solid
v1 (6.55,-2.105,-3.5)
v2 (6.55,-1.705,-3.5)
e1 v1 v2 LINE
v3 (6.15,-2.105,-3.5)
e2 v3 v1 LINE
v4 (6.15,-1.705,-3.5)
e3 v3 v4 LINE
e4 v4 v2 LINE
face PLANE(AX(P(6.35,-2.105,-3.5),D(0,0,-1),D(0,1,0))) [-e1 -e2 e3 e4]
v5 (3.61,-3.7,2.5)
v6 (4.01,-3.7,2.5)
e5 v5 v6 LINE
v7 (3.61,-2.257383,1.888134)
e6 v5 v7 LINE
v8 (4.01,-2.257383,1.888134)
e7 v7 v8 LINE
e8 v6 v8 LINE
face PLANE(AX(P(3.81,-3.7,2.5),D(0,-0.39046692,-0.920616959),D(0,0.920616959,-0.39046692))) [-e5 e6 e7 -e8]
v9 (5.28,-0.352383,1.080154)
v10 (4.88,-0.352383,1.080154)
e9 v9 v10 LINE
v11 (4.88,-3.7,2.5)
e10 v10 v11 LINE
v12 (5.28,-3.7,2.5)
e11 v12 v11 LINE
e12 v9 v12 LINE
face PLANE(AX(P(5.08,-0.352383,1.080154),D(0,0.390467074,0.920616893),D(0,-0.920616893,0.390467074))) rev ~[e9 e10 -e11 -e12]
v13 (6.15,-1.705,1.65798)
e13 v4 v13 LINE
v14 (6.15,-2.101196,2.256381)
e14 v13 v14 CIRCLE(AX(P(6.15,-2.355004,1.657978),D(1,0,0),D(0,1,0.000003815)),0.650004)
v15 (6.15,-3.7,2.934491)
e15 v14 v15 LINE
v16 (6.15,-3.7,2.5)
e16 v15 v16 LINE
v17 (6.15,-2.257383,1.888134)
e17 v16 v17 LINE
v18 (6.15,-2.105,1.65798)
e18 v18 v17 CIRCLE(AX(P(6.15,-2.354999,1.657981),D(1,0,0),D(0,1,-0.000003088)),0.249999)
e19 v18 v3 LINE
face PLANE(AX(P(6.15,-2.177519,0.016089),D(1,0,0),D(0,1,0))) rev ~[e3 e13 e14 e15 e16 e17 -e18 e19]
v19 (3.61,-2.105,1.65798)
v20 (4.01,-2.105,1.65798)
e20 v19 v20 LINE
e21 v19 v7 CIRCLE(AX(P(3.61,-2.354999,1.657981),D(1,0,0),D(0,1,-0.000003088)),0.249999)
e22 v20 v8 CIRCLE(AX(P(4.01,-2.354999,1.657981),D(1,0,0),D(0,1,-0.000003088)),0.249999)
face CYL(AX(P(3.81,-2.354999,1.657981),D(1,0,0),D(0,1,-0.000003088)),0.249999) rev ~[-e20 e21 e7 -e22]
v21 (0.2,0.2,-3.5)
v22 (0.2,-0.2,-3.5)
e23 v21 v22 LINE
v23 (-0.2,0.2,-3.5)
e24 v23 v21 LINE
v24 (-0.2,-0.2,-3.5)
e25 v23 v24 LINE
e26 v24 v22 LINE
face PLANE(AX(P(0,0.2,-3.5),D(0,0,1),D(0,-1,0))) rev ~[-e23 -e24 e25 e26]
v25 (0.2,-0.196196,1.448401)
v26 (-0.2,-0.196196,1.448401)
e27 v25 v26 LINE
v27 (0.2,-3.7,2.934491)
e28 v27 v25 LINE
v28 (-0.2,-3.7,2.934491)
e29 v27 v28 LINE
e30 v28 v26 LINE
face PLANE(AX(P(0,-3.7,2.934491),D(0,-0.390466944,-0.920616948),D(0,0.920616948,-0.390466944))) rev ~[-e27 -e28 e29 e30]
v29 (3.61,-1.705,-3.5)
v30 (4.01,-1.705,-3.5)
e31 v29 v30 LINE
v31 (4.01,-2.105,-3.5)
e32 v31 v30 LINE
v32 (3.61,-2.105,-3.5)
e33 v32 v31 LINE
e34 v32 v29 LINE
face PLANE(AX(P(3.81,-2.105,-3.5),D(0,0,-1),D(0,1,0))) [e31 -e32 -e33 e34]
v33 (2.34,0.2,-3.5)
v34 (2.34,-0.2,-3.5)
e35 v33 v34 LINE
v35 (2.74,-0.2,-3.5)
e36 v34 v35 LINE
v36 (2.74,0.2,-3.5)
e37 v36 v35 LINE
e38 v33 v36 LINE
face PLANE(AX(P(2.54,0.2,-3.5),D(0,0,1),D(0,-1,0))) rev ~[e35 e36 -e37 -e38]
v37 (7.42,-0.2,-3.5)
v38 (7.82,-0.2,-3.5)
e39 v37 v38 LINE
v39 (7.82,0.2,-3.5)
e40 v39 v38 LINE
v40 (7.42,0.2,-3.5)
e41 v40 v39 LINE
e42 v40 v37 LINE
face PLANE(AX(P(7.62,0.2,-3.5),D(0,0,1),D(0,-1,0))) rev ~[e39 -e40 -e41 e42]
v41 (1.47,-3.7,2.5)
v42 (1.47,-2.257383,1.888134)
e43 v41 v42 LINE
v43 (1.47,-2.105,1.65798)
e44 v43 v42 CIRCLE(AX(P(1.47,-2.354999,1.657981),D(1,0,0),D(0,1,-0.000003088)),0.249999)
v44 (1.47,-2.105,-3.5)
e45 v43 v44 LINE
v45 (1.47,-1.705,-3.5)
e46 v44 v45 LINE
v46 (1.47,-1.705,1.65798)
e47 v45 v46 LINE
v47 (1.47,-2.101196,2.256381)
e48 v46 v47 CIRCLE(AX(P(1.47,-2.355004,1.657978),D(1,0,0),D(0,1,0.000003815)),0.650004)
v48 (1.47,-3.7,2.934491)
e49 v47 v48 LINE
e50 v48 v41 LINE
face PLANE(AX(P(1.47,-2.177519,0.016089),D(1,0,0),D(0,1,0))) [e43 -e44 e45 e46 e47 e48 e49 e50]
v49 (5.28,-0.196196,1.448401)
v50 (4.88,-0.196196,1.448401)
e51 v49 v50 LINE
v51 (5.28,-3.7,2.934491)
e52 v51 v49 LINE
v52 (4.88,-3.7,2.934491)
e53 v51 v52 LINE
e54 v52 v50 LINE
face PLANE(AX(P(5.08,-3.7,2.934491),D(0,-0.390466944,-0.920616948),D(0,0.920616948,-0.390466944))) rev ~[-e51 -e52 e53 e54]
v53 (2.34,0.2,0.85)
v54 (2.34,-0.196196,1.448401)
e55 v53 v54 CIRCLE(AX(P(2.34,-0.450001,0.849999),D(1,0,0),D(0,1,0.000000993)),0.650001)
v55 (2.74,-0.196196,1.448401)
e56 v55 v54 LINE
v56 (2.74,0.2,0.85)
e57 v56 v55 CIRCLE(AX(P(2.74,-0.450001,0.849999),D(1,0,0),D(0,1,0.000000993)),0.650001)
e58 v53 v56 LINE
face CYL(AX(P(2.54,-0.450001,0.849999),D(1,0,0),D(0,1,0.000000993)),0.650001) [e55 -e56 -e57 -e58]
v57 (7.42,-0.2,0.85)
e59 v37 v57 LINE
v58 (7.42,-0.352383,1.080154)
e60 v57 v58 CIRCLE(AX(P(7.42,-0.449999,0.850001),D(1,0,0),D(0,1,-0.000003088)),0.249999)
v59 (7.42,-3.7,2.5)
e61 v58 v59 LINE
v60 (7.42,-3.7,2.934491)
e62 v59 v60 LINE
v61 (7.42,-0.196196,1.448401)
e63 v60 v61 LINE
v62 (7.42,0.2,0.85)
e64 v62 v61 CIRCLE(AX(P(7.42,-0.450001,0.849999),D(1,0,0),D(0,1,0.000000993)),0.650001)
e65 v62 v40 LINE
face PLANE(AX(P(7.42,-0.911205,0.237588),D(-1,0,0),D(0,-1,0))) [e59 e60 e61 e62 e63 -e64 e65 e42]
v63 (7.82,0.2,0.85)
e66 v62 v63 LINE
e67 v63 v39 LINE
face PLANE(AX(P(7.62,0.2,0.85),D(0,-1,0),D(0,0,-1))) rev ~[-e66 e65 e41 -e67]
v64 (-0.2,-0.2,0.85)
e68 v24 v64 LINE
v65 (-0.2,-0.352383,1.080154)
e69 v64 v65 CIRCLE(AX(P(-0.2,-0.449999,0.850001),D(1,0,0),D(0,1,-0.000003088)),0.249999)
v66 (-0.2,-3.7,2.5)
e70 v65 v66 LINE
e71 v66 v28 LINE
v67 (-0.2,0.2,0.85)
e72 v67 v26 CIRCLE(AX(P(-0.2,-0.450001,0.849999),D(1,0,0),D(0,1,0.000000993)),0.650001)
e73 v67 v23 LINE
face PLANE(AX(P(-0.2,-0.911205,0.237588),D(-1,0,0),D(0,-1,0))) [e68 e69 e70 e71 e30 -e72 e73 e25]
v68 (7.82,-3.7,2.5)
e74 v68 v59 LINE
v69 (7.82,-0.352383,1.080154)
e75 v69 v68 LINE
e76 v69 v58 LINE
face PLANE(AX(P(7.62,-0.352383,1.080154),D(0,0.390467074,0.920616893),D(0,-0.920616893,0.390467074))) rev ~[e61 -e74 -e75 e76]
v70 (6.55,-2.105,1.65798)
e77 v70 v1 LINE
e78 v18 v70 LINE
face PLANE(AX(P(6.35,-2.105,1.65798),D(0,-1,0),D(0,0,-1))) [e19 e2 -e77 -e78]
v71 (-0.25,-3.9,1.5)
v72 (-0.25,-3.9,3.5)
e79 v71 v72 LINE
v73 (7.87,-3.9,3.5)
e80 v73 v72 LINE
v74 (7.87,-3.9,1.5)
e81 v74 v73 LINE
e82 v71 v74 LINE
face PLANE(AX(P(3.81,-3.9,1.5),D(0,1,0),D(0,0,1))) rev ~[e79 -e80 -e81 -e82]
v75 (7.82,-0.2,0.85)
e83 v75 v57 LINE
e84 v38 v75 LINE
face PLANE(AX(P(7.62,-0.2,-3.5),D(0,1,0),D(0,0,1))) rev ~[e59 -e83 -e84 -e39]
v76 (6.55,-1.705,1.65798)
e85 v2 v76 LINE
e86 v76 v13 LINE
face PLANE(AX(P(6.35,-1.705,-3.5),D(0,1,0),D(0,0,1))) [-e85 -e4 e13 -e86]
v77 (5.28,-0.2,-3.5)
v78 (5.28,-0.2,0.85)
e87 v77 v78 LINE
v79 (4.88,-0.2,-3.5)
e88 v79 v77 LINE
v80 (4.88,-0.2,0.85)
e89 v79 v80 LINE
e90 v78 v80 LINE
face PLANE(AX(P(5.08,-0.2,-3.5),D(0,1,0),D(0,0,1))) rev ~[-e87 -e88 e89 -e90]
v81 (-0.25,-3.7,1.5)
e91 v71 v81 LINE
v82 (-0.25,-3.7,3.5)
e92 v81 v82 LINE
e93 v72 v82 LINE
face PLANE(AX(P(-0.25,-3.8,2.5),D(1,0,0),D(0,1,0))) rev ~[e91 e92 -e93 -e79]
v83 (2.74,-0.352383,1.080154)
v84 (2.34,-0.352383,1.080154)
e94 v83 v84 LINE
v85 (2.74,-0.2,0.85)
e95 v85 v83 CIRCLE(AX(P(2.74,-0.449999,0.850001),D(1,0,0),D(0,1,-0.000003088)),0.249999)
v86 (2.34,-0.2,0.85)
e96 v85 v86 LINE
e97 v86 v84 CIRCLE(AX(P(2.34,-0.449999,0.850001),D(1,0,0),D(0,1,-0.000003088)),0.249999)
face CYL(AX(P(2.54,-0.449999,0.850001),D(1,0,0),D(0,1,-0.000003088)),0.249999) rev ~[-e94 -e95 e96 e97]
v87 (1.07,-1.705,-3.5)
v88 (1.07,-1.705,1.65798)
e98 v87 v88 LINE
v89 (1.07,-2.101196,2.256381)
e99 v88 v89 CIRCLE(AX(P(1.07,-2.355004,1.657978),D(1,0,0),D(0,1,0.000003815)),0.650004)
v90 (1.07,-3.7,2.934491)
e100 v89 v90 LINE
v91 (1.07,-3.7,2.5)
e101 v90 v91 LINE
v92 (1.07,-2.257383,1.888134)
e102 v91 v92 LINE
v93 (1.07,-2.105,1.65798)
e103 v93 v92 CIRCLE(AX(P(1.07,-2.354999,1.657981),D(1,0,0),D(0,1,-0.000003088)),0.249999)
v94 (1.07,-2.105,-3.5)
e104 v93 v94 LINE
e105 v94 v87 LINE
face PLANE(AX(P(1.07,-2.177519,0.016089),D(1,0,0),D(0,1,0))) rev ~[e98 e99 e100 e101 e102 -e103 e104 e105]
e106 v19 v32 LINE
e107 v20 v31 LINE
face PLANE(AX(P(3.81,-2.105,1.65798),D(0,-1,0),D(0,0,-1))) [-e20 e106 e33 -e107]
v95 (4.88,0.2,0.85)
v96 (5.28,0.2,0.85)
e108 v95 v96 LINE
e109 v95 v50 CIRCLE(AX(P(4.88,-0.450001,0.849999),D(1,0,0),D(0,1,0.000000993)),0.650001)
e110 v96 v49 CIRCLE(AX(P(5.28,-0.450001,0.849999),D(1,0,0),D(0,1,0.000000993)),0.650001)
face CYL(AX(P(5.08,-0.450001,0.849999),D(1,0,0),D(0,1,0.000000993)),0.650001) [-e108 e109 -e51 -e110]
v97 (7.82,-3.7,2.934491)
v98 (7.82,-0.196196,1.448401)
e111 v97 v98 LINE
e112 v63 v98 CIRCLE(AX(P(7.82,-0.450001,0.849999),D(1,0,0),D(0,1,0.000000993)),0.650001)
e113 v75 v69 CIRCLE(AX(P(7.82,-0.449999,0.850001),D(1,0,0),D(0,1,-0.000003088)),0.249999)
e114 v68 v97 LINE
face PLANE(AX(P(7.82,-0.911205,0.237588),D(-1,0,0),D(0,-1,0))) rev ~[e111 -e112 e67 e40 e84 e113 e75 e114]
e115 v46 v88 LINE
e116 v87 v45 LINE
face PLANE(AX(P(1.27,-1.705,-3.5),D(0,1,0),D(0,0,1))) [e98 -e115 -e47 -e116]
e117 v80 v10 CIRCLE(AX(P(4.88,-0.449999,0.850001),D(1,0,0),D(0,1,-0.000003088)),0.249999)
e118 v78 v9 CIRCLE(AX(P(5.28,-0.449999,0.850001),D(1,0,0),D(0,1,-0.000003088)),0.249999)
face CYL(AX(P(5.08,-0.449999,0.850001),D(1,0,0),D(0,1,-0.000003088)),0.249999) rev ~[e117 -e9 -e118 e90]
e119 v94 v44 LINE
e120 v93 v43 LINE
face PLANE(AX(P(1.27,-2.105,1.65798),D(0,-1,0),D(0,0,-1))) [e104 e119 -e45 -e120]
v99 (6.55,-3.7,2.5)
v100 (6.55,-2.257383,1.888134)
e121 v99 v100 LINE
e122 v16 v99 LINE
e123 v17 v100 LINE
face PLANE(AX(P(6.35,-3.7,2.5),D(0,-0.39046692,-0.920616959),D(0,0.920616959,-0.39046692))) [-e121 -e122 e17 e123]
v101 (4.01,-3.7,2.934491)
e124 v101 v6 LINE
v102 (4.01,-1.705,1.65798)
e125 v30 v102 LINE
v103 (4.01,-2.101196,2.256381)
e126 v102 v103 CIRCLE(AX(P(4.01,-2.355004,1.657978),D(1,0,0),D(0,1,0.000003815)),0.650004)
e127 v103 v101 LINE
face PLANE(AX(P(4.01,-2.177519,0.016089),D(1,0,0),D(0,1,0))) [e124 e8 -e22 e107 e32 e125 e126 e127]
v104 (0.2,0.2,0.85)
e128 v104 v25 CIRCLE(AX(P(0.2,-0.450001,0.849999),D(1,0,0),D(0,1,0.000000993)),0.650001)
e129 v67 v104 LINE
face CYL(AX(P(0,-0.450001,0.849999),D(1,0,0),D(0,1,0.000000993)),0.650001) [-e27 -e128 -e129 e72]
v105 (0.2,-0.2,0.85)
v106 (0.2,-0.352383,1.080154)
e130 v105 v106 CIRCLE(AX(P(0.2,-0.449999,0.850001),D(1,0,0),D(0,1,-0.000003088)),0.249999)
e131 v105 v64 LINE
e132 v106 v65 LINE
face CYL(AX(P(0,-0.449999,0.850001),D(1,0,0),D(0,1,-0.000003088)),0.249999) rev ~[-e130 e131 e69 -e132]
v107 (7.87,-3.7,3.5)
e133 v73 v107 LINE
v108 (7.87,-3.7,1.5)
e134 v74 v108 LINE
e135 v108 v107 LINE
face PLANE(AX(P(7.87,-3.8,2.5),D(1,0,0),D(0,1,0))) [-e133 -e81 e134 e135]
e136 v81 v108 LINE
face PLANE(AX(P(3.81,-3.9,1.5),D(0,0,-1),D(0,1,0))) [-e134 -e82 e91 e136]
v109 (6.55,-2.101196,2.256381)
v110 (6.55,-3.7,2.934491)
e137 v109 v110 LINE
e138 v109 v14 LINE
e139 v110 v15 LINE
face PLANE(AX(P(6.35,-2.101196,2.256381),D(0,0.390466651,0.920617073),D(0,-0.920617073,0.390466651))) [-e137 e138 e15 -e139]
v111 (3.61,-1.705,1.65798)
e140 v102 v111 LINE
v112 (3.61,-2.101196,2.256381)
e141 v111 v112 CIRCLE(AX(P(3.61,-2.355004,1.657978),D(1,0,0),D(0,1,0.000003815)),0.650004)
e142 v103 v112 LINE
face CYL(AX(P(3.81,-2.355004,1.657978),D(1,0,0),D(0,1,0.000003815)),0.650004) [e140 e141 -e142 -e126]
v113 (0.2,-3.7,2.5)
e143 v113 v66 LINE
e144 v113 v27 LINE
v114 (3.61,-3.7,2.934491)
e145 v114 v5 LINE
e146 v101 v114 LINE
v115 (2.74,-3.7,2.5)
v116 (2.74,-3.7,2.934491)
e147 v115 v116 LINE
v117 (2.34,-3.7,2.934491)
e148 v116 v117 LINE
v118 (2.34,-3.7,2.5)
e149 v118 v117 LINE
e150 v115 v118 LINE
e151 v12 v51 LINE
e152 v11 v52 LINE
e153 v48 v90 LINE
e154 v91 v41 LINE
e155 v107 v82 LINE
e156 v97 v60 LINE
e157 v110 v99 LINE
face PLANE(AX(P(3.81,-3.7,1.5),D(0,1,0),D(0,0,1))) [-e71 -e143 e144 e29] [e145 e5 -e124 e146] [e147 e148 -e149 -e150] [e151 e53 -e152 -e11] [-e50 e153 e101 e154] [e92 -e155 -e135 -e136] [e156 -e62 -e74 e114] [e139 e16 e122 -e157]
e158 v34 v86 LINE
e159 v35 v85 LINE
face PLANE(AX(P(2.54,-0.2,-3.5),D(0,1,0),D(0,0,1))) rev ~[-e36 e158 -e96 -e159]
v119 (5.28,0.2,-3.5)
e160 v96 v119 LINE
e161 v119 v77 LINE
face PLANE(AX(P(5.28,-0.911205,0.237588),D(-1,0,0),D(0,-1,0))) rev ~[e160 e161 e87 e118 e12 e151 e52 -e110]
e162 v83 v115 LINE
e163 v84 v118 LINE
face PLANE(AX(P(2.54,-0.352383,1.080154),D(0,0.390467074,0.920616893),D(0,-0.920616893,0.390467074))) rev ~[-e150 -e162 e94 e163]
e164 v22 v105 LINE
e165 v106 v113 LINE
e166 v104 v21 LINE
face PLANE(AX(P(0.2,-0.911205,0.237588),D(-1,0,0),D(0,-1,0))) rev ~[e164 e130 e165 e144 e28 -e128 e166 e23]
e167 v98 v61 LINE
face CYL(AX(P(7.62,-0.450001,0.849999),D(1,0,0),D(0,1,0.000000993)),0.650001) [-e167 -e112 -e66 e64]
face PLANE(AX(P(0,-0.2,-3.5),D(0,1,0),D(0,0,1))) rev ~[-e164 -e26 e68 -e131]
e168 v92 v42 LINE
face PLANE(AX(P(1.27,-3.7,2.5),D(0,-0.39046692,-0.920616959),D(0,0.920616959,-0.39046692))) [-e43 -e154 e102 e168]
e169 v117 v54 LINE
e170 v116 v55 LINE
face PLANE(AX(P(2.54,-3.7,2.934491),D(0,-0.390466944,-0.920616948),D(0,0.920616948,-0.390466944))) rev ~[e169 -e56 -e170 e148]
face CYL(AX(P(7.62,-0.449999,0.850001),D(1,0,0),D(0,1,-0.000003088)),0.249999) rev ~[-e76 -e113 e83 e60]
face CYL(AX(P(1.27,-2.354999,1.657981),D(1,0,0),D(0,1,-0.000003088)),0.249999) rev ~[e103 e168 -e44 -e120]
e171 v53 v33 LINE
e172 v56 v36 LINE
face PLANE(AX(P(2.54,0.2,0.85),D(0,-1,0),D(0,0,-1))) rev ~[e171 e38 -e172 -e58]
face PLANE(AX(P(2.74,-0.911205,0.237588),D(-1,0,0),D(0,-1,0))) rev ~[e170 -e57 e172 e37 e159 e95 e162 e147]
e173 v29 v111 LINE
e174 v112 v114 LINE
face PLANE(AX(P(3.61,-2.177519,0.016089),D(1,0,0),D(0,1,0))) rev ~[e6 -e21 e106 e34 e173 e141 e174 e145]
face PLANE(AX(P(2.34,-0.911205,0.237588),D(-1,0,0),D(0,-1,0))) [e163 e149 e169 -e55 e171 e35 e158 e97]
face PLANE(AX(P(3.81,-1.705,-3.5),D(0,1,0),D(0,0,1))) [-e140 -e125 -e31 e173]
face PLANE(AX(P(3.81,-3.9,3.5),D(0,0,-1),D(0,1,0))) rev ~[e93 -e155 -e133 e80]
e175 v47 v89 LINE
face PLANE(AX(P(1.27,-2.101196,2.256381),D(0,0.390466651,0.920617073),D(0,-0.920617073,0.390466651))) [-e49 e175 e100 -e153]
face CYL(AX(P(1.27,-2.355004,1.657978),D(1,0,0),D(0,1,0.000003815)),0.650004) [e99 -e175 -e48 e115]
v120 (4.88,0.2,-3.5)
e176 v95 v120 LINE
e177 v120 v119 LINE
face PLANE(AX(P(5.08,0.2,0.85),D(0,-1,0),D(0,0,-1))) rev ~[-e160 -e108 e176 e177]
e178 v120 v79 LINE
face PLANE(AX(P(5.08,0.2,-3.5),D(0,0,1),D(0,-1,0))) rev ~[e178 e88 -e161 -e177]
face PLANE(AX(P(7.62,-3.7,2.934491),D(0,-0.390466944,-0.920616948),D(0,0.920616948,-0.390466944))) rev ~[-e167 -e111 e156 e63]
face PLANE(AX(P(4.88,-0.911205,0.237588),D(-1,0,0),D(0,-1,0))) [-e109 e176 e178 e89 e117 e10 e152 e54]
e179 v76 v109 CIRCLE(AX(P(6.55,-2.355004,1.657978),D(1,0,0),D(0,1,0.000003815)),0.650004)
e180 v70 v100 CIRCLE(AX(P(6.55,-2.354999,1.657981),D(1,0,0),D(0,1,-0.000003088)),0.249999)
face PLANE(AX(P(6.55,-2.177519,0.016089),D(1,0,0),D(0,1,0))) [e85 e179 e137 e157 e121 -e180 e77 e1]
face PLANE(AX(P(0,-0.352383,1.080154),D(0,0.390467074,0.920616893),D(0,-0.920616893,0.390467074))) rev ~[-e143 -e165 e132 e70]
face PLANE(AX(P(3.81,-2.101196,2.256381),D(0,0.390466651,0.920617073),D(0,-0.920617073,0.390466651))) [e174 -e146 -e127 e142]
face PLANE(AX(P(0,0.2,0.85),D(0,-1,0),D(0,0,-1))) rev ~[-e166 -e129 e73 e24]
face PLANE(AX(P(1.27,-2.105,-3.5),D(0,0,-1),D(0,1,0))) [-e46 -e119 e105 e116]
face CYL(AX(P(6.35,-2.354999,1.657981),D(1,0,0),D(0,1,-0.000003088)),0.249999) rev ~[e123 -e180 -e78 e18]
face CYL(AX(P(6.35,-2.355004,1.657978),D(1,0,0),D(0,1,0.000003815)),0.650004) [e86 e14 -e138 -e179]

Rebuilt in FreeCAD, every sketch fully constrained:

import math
import FreeCAD as App
import Part
import Sketcher

V = App.Vector

doc = App.newDocument("Part")
body = doc.addObject("PartDesign::Body", "Body")

sketch1 = body.newObject("Sketcher::SketchObject", "Sketch")
sketch1.AttachmentSupport = (doc.getObject("YZ_Plane"), [""])
sketch1.MapMode = "FlatFace"
sketch1.AttachmentOffset = App.Placement(V(0, 0, 3.81), App.Rotation())
sketch1.addGeometry([
    Part.LineSegment(V(-3.9, 3.5, 0), V(-3.9, 1.5, 0)),
    Part.LineSegment(V(-3.9, 1.5, 0), V(-3.7, 1.5, 0)),
    Part.LineSegment(V(-3.7, 1.5, 0), V(-3.7, 3.5, 0)),
    Part.LineSegment(V(-3.7, 3.5, 0), V(-3.9, 3.5, 0)),
], False)
sketch1.addConstraint([
    Sketcher.Constraint("Coincident", 0, 2, 1, 1),
    Sketcher.Constraint("Coincident", 1, 2, 2, 1),
    Sketcher.Constraint("Coincident", 2, 2, 3, 1),
    Sketcher.Constraint("Coincident", 3, 2, 0, 1),
    Sketcher.Constraint("Vertical", 0),
    Sketcher.Constraint("Horizontal", 1),
    Sketcher.Constraint("Vertical", 2),
    Sketcher.Constraint("Horizontal", 3),
    Sketcher.Constraint("DistanceY", 0, 2, 0, 1, 2.0),
    Sketcher.Constraint("DistanceX", 1, 1, 1, 2, 0.2),
    Sketcher.Constraint("DistanceX", 0, 2, -1, 1, 3.9),
    Sketcher.Constraint("DistanceY", -1, 1, 0, 2, 1.5),
])
pad1 = body.newObject("PartDesign::Pad", "Pad")
pad1.Profile = sketch1
pad1.Length = 8.12
pad1.Midplane = True

sketch2 = body.newObject("Sketcher::SketchObject", "Sketch001")
sketch2.AttachmentSupport = (doc.getObject("YZ_Plane"), [""])
sketch2.MapMode = "FlatFace"
sketch2.addGeometry([
    Part.LineSegment(V(-0.2, 0.85, 0), V(-0.2, -3.5, 0)),
    Part.LineSegment(V(-0.2, -3.5, 0), V(0.2, -3.5, 0)),
    Part.LineSegment(V(0.2, -3.5, 0), V(0.2, 0.85, 0)),
    Part.ArcOfCircle(Part.Circle(V(-0.450001, 0.849999, 0), V(0, 0, 1), 0.650001), math.radians(0.000057), math.radians(67.016323)),
    Part.LineSegment(V(-0.196196, 1.448401, 0), V(-3.7, 2.934491, 0)),
    Part.LineSegment(V(-3.7, 2.934491, 0), V(-3.7, 2.5, 0)),
    Part.LineSegment(V(-3.7, 2.5, 0), V(-0.352383, 1.080154, 0)),
    Part.ArcOfCircle(Part.Circle(V(-0.449999, 0.850001, 0), V(0, 0, 1), 0.249999), math.radians(-0.000177), math.radians(67.016583)),
], False)
sketch2.addConstraint([
    Sketcher.Constraint("Coincident", 0, 2, 1, 1),
    Sketcher.Constraint("Coincident", 1, 2, 2, 1),
    Sketcher.Constraint("Tangent", 2, 2, 3, 1),
    Sketcher.Constraint("Coincident", 3, 2, 4, 1),
    Sketcher.Constraint("Coincident", 4, 2, 5, 1),
    Sketcher.Constraint("Coincident", 5, 2, 6, 1),
    Sketcher.Constraint("Coincident", 6, 2, 7, 2),
    Sketcher.Constraint("Coincident", 7, 1, 0, 1),
    Sketcher.Constraint("Vertical", 0),
    Sketcher.Constraint("Horizontal", 1),
    Sketcher.Constraint("Vertical", 2),
    Sketcher.Constraint("Vertical", 5),
    Sketcher.Constraint("Coincident", 7, 3, 3, 3),
    Sketcher.Constraint("Symmetric", 2, 2, 7, 1, -2),
    Sketcher.Constraint("Parallel", 4, 6),
    Sketcher.Constraint("Radius", 3, 0.650001),
    Sketcher.Constraint("Radius", 7, 0.249999),
    Sketcher.Constraint("DistanceY", 0, 2, 0, 1, 4.35),
    Sketcher.Constraint("DistanceY", 0, 2, -1, 1, 3.5),
    Sketcher.Constraint("DistanceX", 4, 2, -1, 1, 3.7),
    Sketcher.Constraint("DistanceY", -1, 1, 5, 2, 2.5),
    Sketcher.Constraint("DistanceY", -1, 1, 3, 2, 1.448401),
    Sketcher.Constraint("DistanceX", 3, 3, 6, 2, 0.097618),
])
pad2 = body.newObject("PartDesign::Pad", "Pad001")
pad2.Profile = sketch2
pad2.Length = 0.4
pad2.Midplane = True
doc.recompute()

linearpattern = body.newObject("PartDesign::LinearPattern", "LinearPattern")
linearpattern.Originals = [pad2]
linearpattern.Direction = (doc.getObject("X_Axis"), [""])
linearpattern.Mode = "offset"
linearpattern.Offset = 2.54
linearpattern.Occurrences = 4
body.Tip = linearpattern

sketch3 = body.newObject("Sketcher::SketchObject", "Sketch002")
sketch3.AttachmentSupport = (doc.getObject("YZ_Plane"), [""])
sketch3.MapMode = "FlatFace"
sketch3.AttachmentOffset = App.Placement(V(0, 0, 1.27), App.Rotation())
sketch3.addGeometry([
    Part.LineSegment(V(-3.7, 2.934491, 0), V(-3.7, 2.5, 0)),
    Part.LineSegment(V(-3.7, 2.5, 0), V(-2.257383, 1.888134, 0)),
    Part.ArcOfCircle(Part.Circle(V(-2.354999, 1.657981, 0), V(0, 0, 1), 0.249999), math.radians(-0.000177), math.radians(67.016583)),
    Part.LineSegment(V(-2.105, 1.65798, 0), V(-2.105, -3.5, 0)),
    Part.LineSegment(V(-2.105, -3.5, 0), V(-1.705, -3.5, 0)),
    Part.LineSegment(V(-1.705, -3.5, 0), V(-1.705, 1.65798, 0)),
    Part.ArcOfCircle(Part.Circle(V(-2.355004, 1.657978, 0), V(0, 0, 1), 0.650004), math.radians(0.000219), math.radians(67.016161)),
    Part.LineSegment(V(-2.101196, 2.256381, 0), V(-3.7, 2.934491, 0)),
], False)
sketch3.addConstraint([
    Sketcher.Constraint("Coincident", 0, 2, 1, 1),
    Sketcher.Constraint("Coincident", 1, 2, 2, 2),
    Sketcher.Constraint("Coincident", 2, 1, 3, 1),
    Sketcher.Constraint("Coincident", 3, 2, 4, 1),
    Sketcher.Constraint("Coincident", 4, 2, 5, 1),
    Sketcher.Constraint("Coincident", 5, 2, 6, 1),
    Sketcher.Constraint("Coincident", 6, 2, 7, 1),
    Sketcher.Constraint("Coincident", 7, 2, 0, 1),
    Sketcher.Constraint("Vertical", 0),
    Sketcher.Constraint("Vertical", 3),
    Sketcher.Constraint("Horizontal", 4),
    Sketcher.Constraint("Vertical", 5),
    Sketcher.Constraint("Coincident", 6, 3, 2, 3),
    Sketcher.Constraint("Parallel", 1, 7),
    Sketcher.Constraint("Horizontal", 2, 1, 5, 2),
    Sketcher.Constraint("Radius", 2, 0.249999),
    Sketcher.Constraint("DistanceX", 4, 1, 4, 2, 0.4),
    Sketcher.Constraint("DistanceY", 3, 2, 0, 2, 6.0),
    Sketcher.Constraint("DistanceX", 0, 2, -1, 1, 3.7),
    Sketcher.Constraint("DistanceY", -1, 1, 0, 2, 2.5),
    Sketcher.Constraint("DistanceX", 2, 3, -1, 1, 2.354999),
    Sketcher.Constraint("DistanceY", 0, 2, 0, 1, 0.434491),
    Sketcher.Constraint("DistanceY", 3, 2, 3, 1, 5.15798),
    Sketcher.Constraint("DistanceY", 2, 1, 6, 2, 0.598401),
    Sketcher.Constraint("Distance", 1, 1.567011),
])
pad3 = body.newObject("PartDesign::Pad", "Pad002")
pad3.Profile = sketch3
pad3.Length = 0.4
pad3.Midplane = True
doc.recompute()

linearpattern2 = body.newObject("PartDesign::LinearPattern", "LinearPattern001")
linearpattern2.Originals = [pad3]
linearpattern2.Direction = (doc.getObject("X_Axis"), [""])
linearpattern2.Mode = "offset"
linearpattern2.Offset = 2.54
linearpattern2.Occurrences = 3
body.Tip = linearpattern2

doc.recompute()
